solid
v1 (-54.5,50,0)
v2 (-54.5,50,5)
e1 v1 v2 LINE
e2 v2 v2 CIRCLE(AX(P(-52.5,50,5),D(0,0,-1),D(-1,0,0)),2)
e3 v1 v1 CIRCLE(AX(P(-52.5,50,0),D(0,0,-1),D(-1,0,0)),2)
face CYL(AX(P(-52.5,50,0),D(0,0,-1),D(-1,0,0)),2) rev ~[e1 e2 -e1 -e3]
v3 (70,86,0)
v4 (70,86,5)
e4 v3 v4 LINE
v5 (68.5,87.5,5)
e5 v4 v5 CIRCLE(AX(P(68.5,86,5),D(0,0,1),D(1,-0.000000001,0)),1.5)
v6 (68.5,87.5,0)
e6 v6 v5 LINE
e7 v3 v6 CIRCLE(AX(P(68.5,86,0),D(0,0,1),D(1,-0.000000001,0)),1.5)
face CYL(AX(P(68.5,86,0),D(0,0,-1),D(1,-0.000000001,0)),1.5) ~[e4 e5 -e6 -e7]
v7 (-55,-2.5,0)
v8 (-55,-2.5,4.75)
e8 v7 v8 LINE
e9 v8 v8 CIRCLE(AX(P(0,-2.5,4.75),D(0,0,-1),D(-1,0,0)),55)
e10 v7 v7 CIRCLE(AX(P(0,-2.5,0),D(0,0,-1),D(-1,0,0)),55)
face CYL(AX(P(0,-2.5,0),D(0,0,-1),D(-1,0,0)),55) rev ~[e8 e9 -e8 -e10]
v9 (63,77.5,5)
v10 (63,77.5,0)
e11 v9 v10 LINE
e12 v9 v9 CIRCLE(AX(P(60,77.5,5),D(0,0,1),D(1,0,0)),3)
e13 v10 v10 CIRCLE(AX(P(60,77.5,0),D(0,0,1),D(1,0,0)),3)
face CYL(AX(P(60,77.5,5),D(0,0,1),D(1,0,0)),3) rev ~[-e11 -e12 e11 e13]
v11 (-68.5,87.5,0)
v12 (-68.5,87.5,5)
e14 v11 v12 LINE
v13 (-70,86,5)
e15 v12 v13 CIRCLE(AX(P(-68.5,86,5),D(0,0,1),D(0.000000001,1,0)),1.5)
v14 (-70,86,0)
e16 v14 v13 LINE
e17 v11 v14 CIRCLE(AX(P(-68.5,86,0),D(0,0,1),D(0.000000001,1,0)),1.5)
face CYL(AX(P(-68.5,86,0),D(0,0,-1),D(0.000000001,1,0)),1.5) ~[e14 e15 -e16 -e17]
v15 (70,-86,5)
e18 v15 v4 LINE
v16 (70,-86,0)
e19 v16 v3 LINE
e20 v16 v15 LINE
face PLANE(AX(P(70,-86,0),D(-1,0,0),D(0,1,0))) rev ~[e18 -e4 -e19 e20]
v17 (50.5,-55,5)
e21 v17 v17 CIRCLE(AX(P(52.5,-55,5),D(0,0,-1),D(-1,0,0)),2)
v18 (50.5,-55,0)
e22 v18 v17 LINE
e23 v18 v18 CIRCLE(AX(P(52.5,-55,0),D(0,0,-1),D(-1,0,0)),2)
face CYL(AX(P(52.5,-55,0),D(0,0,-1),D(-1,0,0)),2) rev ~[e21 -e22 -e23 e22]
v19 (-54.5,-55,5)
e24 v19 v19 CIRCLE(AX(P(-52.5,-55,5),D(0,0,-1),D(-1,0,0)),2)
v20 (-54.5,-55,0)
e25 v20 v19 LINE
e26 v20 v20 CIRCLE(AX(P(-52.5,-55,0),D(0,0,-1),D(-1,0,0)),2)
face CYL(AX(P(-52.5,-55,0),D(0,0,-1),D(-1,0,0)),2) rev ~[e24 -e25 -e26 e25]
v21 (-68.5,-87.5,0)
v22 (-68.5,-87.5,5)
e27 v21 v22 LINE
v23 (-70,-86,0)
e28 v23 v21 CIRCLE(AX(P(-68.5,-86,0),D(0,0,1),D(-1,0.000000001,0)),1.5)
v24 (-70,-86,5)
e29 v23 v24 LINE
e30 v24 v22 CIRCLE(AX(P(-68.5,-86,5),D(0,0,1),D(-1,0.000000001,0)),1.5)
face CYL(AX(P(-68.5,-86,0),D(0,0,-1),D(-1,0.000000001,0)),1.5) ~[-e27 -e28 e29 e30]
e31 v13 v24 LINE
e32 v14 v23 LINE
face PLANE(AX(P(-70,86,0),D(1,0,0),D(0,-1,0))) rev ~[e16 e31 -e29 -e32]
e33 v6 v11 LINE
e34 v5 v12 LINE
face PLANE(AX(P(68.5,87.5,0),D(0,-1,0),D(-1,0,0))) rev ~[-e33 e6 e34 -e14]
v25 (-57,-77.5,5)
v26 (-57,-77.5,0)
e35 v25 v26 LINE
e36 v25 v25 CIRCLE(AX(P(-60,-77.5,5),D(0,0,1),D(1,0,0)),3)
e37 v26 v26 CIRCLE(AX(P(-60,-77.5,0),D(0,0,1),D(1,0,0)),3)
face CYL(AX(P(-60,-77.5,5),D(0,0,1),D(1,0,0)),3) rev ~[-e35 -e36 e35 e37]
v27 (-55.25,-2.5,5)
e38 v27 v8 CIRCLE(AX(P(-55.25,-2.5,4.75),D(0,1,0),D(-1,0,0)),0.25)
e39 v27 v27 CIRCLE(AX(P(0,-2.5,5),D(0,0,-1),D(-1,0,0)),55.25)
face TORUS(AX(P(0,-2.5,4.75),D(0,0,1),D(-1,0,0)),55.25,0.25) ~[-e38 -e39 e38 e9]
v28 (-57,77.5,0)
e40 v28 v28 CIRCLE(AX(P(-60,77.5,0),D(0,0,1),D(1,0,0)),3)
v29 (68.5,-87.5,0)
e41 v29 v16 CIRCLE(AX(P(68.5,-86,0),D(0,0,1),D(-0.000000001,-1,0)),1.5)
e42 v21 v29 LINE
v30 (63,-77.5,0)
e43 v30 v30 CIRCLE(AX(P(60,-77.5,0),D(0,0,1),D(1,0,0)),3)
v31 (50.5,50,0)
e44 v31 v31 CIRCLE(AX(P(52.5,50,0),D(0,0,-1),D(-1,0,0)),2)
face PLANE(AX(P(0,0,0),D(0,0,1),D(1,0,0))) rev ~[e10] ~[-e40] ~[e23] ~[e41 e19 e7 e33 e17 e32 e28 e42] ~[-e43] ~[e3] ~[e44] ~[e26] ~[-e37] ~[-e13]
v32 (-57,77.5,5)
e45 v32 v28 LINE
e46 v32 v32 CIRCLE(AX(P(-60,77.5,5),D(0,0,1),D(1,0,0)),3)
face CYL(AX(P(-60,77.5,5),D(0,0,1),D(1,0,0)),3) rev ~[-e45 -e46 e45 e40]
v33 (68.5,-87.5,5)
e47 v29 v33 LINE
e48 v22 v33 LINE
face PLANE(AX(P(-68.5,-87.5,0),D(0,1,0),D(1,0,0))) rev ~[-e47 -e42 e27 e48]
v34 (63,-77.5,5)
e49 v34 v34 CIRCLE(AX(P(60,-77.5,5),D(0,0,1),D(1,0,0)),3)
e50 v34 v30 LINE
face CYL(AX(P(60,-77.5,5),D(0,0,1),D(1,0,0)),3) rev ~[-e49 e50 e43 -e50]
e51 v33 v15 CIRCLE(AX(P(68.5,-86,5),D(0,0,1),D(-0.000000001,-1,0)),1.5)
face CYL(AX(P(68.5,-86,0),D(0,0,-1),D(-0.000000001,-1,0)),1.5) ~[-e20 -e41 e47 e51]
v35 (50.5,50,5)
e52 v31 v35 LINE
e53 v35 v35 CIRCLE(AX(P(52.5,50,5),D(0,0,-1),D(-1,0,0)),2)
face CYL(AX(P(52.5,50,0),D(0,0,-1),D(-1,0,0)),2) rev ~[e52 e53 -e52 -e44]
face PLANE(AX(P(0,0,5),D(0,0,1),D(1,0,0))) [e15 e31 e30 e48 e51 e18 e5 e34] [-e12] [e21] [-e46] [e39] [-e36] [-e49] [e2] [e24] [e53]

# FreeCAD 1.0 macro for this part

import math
import FreeCAD as App
import Part
import Sketcher
Q = App.Units.Quantity


def edges_at(feature, points):
    """Names of the edges that pass closest to the given points."""
    edges = feature.Shape.Edges
    near = lambda p: min(range(len(edges)), key=lambda i: edges[i].distToShape(Part.Vertex(*p))[0])
    return sorted({f"Edge{near(p) + 1}" for p in points})

doc = App.newDocument("Part")
params = doc.addObject("Spreadsheet::Sheet", "Params")
for row, (alias, value) in enumerate([
    ("sketch1_radius", "1.5 mm"),
    ("sketch1_width", "137 mm"),
    ("sketch1_height", "172 mm"),
    ("pad1_length", "5 mm"),
    ("sketch2_diameter", "6 mm"),
    ("pocket1_length", "10 mm"),
    ("sketch3_diameter", "4 mm"),
    ("sketch3_diameter2", "110 mm"),
    ("pocket2_length", "10 mm"),
    ("fillet_radius", "0.25 mm"),
], start=1):
    params.set(f"A{row}", alias)
    params.set(f"B{row}", "=" + value)
    params.setAlias(f"B{row}", alias)

body = doc.addObject("PartDesign::Body", "Body")

# Sketch on XY plane
sketch1 = body.newObject("Sketcher::SketchObject", "Sketch")
sketch1.AttachmentSupport = (doc.getObject("XY_Plane"), [""])
sketch1.MapMode = "FlatFace"
sketch1.addGeometry([
    Part.ArcOfCircle(Part.Circle(App.Vector(-68.5, 86, 0), App.Vector(0, 0, 1), 1.5), math.radians(90), math.radians(180)),  # 0
    Part.LineSegment(App.Vector(-70, 86, 0), App.Vector(-70, -86, 0)),  # 1
    Part.ArcOfCircle(Part.Circle(App.Vector(-68.5, -86, 0), App.Vector(0, 0, 1), 1.5), math.radians(180), math.radians(270)),  # 2
    Part.LineSegment(App.Vector(-68.5, -87.5, 0), App.Vector(68.5, -87.5, 0)),  # 3
    Part.ArcOfCircle(Part.Circle(App.Vector(68.5, -86, 0), App.Vector(0, 0, 1), 1.5), math.radians(-90), math.radians(0)),  # 4
    Part.LineSegment(App.Vector(70, -86, 0), App.Vector(70, 86, 0)),  # 5
    Part.ArcOfCircle(Part.Circle(App.Vector(68.5, 86, 0), App.Vector(0, 0, 1), 1.5), math.radians(0), math.radians(90)),  # 6
    Part.LineSegment(App.Vector(68.5, 87.5, 0), App.Vector(-68.5, 87.5, 0)),  # 7
], False)
sketch1.addConstraint([
    Sketcher.Constraint("Tangent", 0, 2, 1, 1),
    Sketcher.Constraint("Tangent", 1, 2, 2, 1),
    Sketcher.Constraint("Tangent", 2, 2, 3, 1),
    Sketcher.Constraint("Tangent", 3, 2, 4, 1),
    Sketcher.Constraint("Tangent", 4, 2, 5, 1),
    Sketcher.Constraint("Tangent", 5, 2, 6, 1),
    Sketcher.Constraint("Tangent", 6, 2, 7, 1),
    Sketcher.Constraint("Tangent", 7, 2, 0, 1),
    Sketcher.Constraint("Vertical", 1),
    Sketcher.Constraint("Horizontal", 3),
    Sketcher.Constraint("Vertical", 5),
    Sketcher.Constraint("Horizontal", 7),
    Sketcher.Constraint("Equal", 0, 2),
    Sketcher.Constraint("Equal", 2, 4),
    Sketcher.Constraint("Equal", 4, 6),
    Sketcher.Constraint("Symmetric", 0, 3, 4, 3, -1, 1),
    Sketcher.Constraint("Radius", 0, Q("1.5 mm")),
    Sketcher.Constraint("DistanceX", 3, 1, 3, 2, Q("137 mm")),
    Sketcher.Constraint("DistanceY", 1, 2, 1, 1, Q("172 mm")),
])
sketch1.setExpression("Constraints[16]", "Params.sketch1_radius")
sketch1.setExpression("Constraints[17]", "Params.sketch1_width")
sketch1.setExpression("Constraints[18]", "Params.sketch1_height")
pad1 = body.newObject("PartDesign::Pad", "Pad")
pad1.Profile = sketch1
pad1.setExpression("Length", "Params.pad1_length")

# Sketch on XY plane
sketch2 = body.newObject("Sketcher::SketchObject", "Sketch001")
sketch2.AttachmentSupport = (doc.getObject("XY_Plane"), [""])
sketch2.MapMode = "FlatFace"
sketch2.AttachmentOffset = App.Placement(App.Vector(0, 0, 5), App.Rotation())
sketch2.addGeometry([
    Part.Circle(App.Vector(-60, -77.5, 0), App.Vector(0, 0, 1), 3),
    Part.Circle(App.Vector(60, -77.5, 0), App.Vector(0, 0, 1), 3),
    Part.Circle(App.Vector(-60, 77.5, 0), App.Vector(0, 0, 1), 3),
    Part.Circle(App.Vector(60, 77.5, 0), App.Vector(0, 0, 1), 3),
], False)
sketch2.addConstraint([
    Sketcher.Constraint("Equal", 0, 1),
    Sketcher.Constraint("Equal", 1, 2),
    Sketcher.Constraint("Equal", 2, 3),
    Sketcher.Constraint("Symmetric", 1, 3, 2, 3, -1, 1),
    Sketcher.Constraint("Symmetric", 0, 3, 3, 3, -1, 1),
    Sketcher.Constraint("Symmetric", 0, 3, 1, 3, -2),
    Sketcher.Constraint("Diameter", 0, Q("6 mm")),
    Sketcher.Constraint("DistanceX", 0, 3, -1, 1, Q("60 mm")),
    Sketcher.Constraint("DistanceY", 0, 3, 2, 3, Q("155 mm")),
])
sketch2.setExpression("Constraints[6]", "Params.sketch2_diameter")
pocket1 = body.newObject("PartDesign::Pocket", "Pocket")
pocket1.Profile = sketch2
pocket1.setExpression("Length", "Params.pocket1_length")

# Sketch on XY plane
sketch3 = body.newObject("Sketcher::SketchObject", "Sketch002")
sketch3.AttachmentSupport = (doc.getObject("XY_Plane"), [""])
sketch3.MapMode = "FlatFace"
sketch3.addGeometry([
    Part.Circle(App.Vector(52.5, 50, 0), App.Vector(0, 0, 1), 2),  # 0
    Part.Circle(App.Vector(-52.5, 50, 0), App.Vector(0, 0, 1), 2),  # 1
    Part.Circle(App.Vector(-52.5, -55, 0), App.Vector(0, 0, 1), 2),  # 2
    Part.Circle(App.Vector(52.5, -55, 0), App.Vector(0, 0, 1), 2),  # 3
    Part.Circle(App.Vector(0, -2.5, 0), App.Vector(0, 0, 1), 55),  # 4
], False)
sketch3.addConstraint([
    Sketcher.Constraint("Equal", 0, 1),
    Sketcher.Constraint("Equal", 1, 2),
    Sketcher.Constraint("Equal", 2, 3),
    Sketcher.Constraint("Symmetric", 0, 3, 1, 3, -2),
    Sketcher.Constraint("Symmetric", 2, 3, 3, 3, -2),
    Sketcher.Constraint("PointOnObject", 4, 3, -2),
    Sketcher.Constraint("Vertical", 1, 3, 2, 3),
    Sketcher.Constraint("Diameter", 0, Q("4 mm")),
    Sketcher.Constraint("Diameter", 4, Q("110 mm")),
    Sketcher.Constraint("DistanceY", -1, 1, 0, 3, Q("50 mm")),
    Sketcher.Constraint("DistanceY", 2, 3, -1, 1, Q("55 mm")),
    Sketcher.Constraint("DistanceX", 1, 3, 0, 3, Q("105 mm")),
    Sketcher.Constraint("DistanceY", 4, 3, -1, 1, Q("2.5 mm")),
])
sketch3.setExpression("Constraints[7]", "Params.sketch3_diameter")
sketch3.setExpression("Constraints[8]", "Params.sketch3_diameter2")
pocket2 = body.newObject("PartDesign::Pocket", "Pocket001")
pocket2.Profile = sketch3
pocket2.setExpression("Length", "Params.pocket2_length")
pocket2.Reversed = True
doc.recompute()

fillet = body.newObject("PartDesign::Fillet", "Fillet")
fillet.Base = (pocket2, edges_at(pocket2, [(55, -2.5, 5)]))
fillet.setExpression("Radius", "Params.fillet_radius")

doc.recompute()
